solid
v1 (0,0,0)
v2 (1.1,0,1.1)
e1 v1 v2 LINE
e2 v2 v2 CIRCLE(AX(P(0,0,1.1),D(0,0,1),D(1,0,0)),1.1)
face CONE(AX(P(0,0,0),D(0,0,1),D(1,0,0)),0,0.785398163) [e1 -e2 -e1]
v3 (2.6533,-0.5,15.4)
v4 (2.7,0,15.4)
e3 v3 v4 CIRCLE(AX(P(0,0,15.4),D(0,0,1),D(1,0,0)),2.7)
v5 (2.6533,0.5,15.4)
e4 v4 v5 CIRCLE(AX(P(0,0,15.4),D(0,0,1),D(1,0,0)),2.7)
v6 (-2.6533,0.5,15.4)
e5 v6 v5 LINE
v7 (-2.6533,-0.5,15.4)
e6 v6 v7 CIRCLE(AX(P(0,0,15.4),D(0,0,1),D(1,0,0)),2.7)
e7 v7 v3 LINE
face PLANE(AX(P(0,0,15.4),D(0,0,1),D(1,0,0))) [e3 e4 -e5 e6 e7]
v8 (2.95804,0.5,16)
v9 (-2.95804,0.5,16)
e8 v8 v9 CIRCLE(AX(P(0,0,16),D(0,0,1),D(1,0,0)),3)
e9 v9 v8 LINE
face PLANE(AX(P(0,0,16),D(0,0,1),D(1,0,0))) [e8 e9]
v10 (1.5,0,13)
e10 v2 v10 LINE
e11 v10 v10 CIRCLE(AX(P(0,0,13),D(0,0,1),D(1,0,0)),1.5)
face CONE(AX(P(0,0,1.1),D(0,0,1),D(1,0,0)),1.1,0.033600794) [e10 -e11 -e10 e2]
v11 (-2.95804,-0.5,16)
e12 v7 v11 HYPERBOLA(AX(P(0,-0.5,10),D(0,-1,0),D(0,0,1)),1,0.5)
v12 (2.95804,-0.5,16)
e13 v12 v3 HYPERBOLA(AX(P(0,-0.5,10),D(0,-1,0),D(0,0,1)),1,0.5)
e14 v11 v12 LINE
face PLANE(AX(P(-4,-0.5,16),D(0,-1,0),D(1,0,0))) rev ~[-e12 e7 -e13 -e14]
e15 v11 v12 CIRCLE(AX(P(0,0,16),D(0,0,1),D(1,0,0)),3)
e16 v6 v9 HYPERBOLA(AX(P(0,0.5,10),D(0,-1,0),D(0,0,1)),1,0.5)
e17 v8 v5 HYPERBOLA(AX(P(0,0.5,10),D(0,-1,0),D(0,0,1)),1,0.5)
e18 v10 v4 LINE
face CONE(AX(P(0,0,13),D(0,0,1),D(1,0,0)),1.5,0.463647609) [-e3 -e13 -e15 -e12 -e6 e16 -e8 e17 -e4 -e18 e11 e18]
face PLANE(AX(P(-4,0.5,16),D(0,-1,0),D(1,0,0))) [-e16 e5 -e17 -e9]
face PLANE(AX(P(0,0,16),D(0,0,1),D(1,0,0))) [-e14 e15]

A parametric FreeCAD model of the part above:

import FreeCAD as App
import Part
import Sketcher

V = App.Vector
Q = App.Units.Quantity

doc = App.newDocument("Part")
params = doc.addObject("Spreadsheet::Sheet", "Params")
for row, (alias, value) in enumerate([
    ("sketch1_width", "3 mm"),
    ("sketch1_height", "16 mm"),
    ("revolution_angle", "360 deg"),
    ("sketch2_width", "8 mm"),
    ("sketch2_height", "1 mm"),
    ("pocket1_length", "0.6 mm"),
], start=1):
    params.set(f"A{row}", alias)
    params.set(f"B{row}", "=" + value)
    params.setAlias(f"B{row}", alias)

body = doc.addObject("PartDesign::Body", "Body")

sketch1 = doc.addObject("Sketcher::SketchObject", "Sketch")
body.addObject(sketch1)
sketch1.AttachmentSupport = (doc.XZ_Plane, [""])
sketch1.MapMode = "FlatFace"
sketch1.addGeometry([
    Part.LineSegment(V(0, 16, 0), V(0, 0, 0)),
    Part.LineSegment(V(0, 0, 0), V(1.1, 1.1, 0)),
    Part.LineSegment(V(1.1, 1.1, 0), V(1.5, 13, 0)),
    Part.LineSegment(V(1.5, 13, 0), V(3, 16, 0)),
    Part.LineSegment(V(3, 16, 0), V(0, 16, 0)),
], False)
sketch1.addConstraint([
    Sketcher.Constraint("Coincident", 0, 2, 1, 1),
    Sketcher.Constraint("Coincident", 1, 2, 2, 1),
    Sketcher.Constraint("Coincident", 2, 2, 3, 1),
    Sketcher.Constraint("Coincident", 3, 2, 4, 1),
    Sketcher.Constraint("Coincident", 4, 2, 0, 1),
    Sketcher.Constraint("Vertical", 0),
    Sketcher.Constraint("Horizontal", 4),
    Sketcher.Constraint("Coincident", 0, 2, -1, 1),
    Sketcher.Constraint("DistanceX", 4, 2, 4, 1, Q("3 mm")),
    Sketcher.Constraint("DistanceY", 0, 2, 0, 1, Q("16 mm")),
    Sketcher.Constraint("Angle", 1, Q("45 deg")),
    Sketcher.Constraint("DistanceY", -1, 1, 2, 2, Q("13 mm")),
    Sketcher.Constraint("DistanceX", -1, 1, 1, 2, Q("1.1 mm")),
    Sketcher.Constraint("DistanceX", -1, 1, 2, 2, Q("1.5 mm")),
])
sketch1.setExpression("Constraints[8]", "Params.sketch1_width")
sketch1.setExpression("Constraints[9]", "Params.sketch1_height")
revolution = doc.addObject("PartDesign::Revolution", "Revolution")
body.addObject(revolution)
revolution.Profile = sketch1
revolution.ReferenceAxis = (sketch1, ["V_Axis"])
revolution.setExpression("Angle", "Params.revolution_angle")

sketch2 = doc.addObject("Sketcher::SketchObject", "Sketch001")
body.addObject(sketch2)
sketch2.AttachmentSupport = (doc.XY_Plane, [""])
sketch2.MapMode = "FlatFace"
sketch2.AttachmentOffset = App.Placement(V(0, 0, 16), App.Rotation())
sketch2.addGeometry([
    Part.LineSegment(V(-4, 0.5, 0), V(-4, -0.5, 0)),
    Part.LineSegment(V(-4, -0.5, 0), V(4, -0.5, 0)),
    Part.LineSegment(V(4, -0.5, 0), V(4, 0.5, 0)),
    Part.LineSegment(V(4, 0.5, 0), V(-4, 0.5, 0)),
], False)
sketch2.addConstraint([
    Sketcher.Constraint("Coincident", 0, 2, 1, 1),
    Sketcher.Constraint("Coincident", 1, 2, 2, 1),
    Sketcher.Constraint("Coincident", 2, 2, 3, 1),
    Sketcher.Constraint("Coincident", 3, 2, 0, 1),
    Sketcher.Constraint("Vertical", 0),
    Sketcher.Constraint("Horizontal", 1),
    Sketcher.Constraint("Vertical", 2),
    Sketcher.Constraint("Horizontal", 3),
    Sketcher.Constraint("Symmetric", 0, 2, 2, 2, -1, 1),
    Sketcher.Constraint("DistanceX", 1, 1, 1, 2, Q("8 mm")),
    Sketcher.Constraint("DistanceY", 0, 2, 0, 1, Q("1 mm")),
])
sketch2.setExpression("Constraints[9]", "Params.sketch2_width")
sketch2.setExpression("Constraints[10]", "Params.sketch2_height")
pocket1 = doc.addObject("PartDesign::Pocket", "Pocket")
body.addObject(pocket1)
pocket1.Profile = sketch2
pocket1.setExpression("Length", "Params.pocket1_length")

doc.recompute()
